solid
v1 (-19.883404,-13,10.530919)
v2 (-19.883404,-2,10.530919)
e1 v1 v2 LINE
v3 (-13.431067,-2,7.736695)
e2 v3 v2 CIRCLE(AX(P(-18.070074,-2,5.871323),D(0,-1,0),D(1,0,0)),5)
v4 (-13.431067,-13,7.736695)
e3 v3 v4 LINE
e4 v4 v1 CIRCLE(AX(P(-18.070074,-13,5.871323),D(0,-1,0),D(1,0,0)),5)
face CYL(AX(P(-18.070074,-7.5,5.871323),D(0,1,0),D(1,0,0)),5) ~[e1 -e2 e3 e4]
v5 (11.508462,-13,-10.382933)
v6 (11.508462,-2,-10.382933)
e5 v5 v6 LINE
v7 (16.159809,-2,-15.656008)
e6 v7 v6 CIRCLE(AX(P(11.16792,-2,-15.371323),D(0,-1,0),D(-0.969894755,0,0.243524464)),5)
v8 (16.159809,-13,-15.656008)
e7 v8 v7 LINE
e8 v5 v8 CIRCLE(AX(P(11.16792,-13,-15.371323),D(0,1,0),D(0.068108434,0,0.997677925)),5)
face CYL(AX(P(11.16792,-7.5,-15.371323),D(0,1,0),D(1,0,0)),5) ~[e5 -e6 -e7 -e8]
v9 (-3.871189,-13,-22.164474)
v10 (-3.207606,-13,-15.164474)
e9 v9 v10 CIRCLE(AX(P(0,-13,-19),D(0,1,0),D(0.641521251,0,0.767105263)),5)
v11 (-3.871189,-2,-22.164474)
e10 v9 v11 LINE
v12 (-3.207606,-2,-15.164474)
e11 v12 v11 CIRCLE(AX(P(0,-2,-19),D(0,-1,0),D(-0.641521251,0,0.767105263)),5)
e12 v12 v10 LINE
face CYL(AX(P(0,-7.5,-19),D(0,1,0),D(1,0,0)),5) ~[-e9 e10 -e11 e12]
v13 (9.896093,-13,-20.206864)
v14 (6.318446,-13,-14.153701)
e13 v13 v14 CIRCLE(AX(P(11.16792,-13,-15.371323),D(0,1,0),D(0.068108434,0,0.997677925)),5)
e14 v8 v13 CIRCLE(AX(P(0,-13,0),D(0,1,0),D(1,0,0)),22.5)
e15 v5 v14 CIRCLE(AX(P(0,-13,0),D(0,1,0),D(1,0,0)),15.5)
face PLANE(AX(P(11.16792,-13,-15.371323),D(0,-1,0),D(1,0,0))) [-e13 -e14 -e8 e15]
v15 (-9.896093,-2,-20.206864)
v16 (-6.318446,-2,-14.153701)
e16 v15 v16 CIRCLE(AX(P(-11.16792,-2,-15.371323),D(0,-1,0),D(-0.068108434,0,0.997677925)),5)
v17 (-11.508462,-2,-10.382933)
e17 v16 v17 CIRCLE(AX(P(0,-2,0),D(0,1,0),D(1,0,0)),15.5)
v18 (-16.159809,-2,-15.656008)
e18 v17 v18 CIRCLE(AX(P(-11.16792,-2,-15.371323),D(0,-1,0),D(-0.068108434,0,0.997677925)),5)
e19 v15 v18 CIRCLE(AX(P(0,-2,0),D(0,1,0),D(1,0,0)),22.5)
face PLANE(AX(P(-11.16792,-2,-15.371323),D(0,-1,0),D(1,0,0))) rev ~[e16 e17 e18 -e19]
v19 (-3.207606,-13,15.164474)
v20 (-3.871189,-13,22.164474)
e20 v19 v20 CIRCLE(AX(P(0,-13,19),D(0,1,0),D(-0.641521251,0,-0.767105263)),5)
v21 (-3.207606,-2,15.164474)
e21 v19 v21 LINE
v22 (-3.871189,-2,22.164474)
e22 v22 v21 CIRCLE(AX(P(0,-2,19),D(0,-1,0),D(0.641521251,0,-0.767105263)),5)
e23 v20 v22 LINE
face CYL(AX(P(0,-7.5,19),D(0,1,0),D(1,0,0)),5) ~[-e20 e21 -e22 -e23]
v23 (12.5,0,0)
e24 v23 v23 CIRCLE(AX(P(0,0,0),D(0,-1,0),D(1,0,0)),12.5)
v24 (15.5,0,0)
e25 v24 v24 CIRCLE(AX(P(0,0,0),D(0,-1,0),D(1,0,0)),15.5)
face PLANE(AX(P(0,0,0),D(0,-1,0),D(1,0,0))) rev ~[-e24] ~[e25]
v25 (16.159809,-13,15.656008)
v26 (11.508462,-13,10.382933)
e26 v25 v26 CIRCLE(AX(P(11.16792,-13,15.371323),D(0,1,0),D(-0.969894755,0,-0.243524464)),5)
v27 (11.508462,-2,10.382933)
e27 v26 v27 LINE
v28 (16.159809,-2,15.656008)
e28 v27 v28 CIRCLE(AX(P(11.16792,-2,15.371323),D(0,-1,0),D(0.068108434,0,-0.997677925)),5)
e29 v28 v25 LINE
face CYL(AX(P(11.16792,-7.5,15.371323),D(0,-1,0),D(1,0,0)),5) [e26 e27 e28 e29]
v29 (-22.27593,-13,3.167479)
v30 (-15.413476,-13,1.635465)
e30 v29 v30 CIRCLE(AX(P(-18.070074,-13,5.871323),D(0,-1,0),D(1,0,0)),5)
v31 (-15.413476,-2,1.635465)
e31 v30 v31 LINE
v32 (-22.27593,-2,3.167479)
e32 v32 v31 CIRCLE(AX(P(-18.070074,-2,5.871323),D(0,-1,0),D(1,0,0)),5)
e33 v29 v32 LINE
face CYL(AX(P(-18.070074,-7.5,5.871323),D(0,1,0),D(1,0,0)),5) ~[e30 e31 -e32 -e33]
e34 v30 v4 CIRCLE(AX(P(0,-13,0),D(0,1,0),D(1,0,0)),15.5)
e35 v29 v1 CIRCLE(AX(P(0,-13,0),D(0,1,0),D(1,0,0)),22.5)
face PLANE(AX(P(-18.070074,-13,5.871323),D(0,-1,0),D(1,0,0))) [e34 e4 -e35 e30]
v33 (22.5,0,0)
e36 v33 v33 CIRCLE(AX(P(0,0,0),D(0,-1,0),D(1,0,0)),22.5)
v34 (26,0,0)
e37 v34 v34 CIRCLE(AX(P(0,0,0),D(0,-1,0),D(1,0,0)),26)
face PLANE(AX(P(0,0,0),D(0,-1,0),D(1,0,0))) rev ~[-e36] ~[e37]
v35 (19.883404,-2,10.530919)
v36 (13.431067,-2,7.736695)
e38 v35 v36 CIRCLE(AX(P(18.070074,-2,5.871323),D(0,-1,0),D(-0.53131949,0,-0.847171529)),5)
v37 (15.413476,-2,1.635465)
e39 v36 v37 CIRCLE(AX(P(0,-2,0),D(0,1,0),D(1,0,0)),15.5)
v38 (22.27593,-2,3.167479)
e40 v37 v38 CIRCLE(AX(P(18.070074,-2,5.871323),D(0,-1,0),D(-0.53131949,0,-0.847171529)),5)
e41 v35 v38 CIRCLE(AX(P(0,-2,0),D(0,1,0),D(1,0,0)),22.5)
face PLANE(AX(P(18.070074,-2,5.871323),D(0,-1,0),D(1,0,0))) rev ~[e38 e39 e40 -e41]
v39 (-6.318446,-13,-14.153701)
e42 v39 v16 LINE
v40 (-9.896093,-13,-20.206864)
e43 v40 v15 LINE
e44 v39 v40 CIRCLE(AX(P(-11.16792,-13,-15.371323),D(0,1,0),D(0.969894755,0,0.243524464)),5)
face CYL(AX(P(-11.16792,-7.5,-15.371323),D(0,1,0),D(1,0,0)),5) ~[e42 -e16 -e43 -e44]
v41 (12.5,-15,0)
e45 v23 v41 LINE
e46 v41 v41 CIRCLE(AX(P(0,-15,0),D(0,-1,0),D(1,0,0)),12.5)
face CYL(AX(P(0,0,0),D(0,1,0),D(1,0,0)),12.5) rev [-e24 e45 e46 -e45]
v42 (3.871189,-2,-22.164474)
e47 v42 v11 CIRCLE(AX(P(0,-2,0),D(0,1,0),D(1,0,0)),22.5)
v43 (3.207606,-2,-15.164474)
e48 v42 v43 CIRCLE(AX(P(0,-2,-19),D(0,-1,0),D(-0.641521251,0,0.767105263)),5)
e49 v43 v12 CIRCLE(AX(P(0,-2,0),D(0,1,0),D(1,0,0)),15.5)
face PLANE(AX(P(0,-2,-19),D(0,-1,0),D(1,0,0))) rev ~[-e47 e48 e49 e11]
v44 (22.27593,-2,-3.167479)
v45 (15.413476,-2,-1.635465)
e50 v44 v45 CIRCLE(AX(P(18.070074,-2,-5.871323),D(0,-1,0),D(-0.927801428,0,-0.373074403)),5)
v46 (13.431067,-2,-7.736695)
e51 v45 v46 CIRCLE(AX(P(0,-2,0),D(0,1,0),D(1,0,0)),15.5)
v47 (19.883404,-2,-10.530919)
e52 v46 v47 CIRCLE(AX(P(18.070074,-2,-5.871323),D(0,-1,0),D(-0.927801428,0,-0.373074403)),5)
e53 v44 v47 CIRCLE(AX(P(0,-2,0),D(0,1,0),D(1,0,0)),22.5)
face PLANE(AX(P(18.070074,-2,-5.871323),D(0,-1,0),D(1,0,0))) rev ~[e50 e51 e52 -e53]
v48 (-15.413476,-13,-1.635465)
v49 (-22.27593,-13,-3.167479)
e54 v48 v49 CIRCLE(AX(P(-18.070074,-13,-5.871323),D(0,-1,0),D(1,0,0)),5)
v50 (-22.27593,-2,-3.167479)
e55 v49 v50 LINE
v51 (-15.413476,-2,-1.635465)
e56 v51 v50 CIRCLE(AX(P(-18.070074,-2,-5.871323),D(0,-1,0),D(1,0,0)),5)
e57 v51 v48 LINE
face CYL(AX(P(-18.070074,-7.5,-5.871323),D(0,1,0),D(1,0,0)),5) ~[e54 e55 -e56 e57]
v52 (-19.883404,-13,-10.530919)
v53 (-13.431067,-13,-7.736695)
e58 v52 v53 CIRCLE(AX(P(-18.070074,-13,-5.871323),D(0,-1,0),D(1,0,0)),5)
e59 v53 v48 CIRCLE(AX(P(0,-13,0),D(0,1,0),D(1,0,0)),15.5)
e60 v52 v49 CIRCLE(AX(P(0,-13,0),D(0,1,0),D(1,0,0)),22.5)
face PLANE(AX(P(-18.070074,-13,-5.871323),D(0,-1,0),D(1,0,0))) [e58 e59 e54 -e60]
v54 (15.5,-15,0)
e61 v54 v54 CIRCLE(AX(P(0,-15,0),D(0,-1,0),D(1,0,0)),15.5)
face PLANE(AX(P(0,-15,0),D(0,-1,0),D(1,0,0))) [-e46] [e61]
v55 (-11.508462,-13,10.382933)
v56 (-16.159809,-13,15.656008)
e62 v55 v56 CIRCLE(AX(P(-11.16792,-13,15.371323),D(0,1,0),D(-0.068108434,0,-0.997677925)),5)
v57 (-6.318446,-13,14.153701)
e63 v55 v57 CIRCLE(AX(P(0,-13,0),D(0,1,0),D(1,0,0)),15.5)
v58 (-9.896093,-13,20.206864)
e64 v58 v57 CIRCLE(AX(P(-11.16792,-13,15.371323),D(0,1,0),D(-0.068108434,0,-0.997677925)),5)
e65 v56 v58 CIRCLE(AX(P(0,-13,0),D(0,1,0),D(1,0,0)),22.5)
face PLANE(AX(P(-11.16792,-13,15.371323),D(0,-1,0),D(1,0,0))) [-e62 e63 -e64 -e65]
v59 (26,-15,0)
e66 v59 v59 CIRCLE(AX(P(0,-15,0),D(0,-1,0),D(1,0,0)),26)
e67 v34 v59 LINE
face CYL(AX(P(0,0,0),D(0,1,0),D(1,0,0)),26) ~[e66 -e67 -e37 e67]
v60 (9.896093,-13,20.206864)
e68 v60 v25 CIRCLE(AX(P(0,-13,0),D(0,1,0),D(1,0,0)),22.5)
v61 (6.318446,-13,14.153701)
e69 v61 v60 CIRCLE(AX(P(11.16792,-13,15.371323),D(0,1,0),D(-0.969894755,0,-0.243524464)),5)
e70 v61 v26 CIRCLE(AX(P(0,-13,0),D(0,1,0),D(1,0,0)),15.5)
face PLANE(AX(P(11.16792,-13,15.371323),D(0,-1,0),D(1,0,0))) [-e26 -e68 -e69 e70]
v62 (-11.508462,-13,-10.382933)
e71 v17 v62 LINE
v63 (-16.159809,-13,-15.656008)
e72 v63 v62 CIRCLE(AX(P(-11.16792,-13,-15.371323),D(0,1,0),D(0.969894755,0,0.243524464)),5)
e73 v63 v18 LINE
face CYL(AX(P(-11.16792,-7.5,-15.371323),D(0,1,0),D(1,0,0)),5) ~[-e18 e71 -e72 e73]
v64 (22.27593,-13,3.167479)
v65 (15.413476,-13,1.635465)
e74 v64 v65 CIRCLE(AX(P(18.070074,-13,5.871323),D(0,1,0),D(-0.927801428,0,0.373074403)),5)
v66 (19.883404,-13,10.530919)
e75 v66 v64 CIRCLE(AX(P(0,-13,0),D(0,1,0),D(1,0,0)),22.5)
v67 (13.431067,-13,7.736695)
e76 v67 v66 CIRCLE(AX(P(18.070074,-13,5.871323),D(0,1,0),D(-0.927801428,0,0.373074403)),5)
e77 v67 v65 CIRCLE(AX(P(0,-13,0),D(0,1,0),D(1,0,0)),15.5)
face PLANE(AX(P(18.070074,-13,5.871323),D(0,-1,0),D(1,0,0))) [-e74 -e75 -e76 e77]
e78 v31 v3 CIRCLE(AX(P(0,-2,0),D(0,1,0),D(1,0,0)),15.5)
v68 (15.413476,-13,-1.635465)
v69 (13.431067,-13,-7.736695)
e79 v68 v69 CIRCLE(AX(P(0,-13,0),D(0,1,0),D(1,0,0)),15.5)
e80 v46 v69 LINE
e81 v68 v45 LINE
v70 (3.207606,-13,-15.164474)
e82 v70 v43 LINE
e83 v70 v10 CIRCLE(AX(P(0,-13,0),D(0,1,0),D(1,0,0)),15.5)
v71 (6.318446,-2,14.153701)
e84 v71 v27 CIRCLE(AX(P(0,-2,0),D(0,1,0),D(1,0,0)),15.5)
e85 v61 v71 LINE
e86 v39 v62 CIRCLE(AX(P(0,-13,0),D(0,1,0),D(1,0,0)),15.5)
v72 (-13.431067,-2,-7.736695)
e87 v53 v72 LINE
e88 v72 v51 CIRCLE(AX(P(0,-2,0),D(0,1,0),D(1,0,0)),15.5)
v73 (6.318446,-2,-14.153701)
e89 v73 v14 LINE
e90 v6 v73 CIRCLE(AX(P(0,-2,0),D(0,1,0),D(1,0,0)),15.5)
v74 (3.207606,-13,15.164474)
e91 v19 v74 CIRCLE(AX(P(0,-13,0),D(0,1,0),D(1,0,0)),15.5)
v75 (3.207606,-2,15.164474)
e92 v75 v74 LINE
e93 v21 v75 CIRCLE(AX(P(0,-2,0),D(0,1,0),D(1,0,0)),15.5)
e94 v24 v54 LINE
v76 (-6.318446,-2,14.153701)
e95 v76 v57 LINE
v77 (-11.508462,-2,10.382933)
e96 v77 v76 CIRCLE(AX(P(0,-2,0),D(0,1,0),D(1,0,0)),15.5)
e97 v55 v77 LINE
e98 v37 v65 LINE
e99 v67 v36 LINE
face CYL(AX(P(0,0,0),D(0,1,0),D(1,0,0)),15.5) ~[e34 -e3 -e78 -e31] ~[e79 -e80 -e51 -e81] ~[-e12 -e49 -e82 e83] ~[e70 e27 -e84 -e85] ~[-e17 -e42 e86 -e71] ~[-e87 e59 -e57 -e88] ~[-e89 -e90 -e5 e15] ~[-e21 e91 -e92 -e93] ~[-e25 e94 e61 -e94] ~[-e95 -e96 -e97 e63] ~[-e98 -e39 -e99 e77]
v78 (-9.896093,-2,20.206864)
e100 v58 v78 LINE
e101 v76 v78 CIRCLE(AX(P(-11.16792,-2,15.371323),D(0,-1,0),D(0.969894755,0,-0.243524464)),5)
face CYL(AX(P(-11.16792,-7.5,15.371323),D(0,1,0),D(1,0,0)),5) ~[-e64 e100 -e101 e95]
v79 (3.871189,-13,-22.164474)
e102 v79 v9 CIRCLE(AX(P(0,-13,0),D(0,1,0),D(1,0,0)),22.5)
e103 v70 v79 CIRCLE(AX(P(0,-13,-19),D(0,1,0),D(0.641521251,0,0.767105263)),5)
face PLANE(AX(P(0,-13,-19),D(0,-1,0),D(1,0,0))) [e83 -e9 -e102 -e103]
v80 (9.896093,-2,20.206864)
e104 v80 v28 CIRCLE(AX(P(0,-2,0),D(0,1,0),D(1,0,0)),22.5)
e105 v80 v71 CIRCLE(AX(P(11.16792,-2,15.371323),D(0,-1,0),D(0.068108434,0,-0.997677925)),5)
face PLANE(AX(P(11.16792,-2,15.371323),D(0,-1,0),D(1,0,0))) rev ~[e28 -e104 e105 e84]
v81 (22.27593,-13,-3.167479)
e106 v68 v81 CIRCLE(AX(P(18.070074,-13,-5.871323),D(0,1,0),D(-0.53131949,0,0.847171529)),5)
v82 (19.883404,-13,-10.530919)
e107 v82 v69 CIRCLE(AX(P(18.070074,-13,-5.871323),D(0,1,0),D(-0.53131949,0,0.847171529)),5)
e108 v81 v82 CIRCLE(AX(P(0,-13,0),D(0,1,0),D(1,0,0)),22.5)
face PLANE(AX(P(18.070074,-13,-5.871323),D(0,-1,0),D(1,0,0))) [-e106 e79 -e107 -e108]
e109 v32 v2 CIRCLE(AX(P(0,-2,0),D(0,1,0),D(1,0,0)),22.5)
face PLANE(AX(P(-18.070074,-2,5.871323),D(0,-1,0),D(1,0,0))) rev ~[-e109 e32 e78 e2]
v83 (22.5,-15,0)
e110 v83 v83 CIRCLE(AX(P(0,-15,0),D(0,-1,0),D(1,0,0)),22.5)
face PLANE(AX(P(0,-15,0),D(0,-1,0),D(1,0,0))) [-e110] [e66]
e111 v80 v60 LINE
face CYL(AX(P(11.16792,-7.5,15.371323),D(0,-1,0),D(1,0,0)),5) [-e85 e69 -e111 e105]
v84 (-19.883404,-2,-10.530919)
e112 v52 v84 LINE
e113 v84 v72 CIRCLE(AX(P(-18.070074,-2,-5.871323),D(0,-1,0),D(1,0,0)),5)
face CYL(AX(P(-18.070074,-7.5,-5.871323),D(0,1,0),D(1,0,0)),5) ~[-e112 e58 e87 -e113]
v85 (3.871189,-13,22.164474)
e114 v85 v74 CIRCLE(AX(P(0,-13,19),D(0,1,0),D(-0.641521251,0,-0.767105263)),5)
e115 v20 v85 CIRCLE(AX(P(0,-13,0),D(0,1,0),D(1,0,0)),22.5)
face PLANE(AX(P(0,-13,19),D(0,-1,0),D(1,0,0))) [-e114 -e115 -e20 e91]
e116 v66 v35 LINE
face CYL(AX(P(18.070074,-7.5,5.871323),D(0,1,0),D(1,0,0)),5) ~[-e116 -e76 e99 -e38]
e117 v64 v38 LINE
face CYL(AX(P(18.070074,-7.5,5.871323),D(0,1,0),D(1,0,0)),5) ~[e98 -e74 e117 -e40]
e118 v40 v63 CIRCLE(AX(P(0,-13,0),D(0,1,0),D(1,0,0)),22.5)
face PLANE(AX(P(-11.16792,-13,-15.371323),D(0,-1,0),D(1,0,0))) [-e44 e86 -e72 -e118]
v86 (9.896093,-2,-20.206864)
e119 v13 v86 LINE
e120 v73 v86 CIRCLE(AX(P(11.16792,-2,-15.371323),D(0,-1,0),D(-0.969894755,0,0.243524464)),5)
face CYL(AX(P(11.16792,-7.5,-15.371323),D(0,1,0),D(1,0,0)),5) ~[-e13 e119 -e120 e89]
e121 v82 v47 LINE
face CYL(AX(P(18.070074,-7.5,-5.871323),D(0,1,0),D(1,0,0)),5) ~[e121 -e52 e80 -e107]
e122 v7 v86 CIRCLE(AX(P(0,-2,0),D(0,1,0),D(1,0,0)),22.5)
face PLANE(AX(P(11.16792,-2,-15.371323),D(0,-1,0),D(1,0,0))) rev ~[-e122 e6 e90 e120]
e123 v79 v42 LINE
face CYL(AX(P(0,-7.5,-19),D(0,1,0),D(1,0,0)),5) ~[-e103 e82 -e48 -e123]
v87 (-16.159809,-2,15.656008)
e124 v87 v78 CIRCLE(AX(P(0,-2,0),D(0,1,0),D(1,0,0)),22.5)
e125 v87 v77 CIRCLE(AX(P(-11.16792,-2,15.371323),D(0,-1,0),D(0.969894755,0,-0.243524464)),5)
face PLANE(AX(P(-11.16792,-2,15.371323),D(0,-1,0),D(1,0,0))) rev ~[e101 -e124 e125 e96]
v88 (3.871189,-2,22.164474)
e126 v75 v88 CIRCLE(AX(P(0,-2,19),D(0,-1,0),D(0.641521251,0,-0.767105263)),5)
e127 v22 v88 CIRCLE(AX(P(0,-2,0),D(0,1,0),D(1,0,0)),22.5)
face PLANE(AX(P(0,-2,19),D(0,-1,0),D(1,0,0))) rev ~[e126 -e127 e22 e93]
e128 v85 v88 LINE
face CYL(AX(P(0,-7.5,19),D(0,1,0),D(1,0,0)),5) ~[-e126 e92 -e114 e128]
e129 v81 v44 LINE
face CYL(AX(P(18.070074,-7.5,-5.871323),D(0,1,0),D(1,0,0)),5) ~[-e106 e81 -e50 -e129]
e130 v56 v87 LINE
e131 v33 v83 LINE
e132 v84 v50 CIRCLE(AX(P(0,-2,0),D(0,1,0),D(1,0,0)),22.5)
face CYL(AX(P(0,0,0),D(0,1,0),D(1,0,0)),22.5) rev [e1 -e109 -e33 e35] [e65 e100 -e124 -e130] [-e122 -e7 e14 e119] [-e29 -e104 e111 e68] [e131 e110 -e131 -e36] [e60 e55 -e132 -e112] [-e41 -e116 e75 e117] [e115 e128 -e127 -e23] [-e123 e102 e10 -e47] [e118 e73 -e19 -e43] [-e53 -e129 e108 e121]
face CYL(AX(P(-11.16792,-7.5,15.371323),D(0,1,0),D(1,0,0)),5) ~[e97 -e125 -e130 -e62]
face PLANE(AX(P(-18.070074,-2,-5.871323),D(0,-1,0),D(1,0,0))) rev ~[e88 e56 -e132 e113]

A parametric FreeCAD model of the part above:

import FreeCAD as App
import Part
import Sketcher

doc = App.newDocument("Part")
body = doc.addObject("PartDesign::Body", "Body")

# Sketch on XZ plane
sketch1 = body.newObject("Sketcher::SketchObject", "Sketch")
sketch1.AttachmentSupport = (doc.getObject("XZ_Plane"), [""])
sketch1.MapMode = "FlatFace"
sketch1.addGeometry([
    Part.Circle(App.Vector(0, 0, 0), App.Vector(0, 0, 1), 16),
    Part.Circle(App.Vector(0, 0, 0), App.Vector(0, 0, 1), 12),
], False)
sketch1.addConstraint([
    Sketcher.Constraint("Coincident", 0, 3, -1, 1),
    Sketcher.Constraint("Coincident", 1, 3, -1, 1),
    Sketcher.Constraint("Diameter", 0, 31.0),
    Sketcher.Constraint("Diameter", 1, 25.0),
])
pad1 = body.newObject("PartDesign::Pad", "Pad")
pad1.Profile = sketch1
pad1.Length = 15

# Sketch on XZ plane
sketch2 = body.newObject("Sketcher::SketchObject", "Sketch001")
sketch2.AttachmentSupport = (doc.getObject("XZ_Plane"), [""])
sketch2.MapMode = "FlatFace"
sketch2.AttachmentOffset = App.Placement(App.Vector(0, 0, 7.5), App.Rotation())
sketch2.addGeometry([
    Part.Circle(App.Vector(0, 19, 0), App.Vector(0, 0, 1), 5),  # 0
    Part.Circle(App.Vector(-11, 15, 0), App.Vector(0, 0, 1), 5),  # 1
    Part.Circle(App.Vector(-18, 6, 0), App.Vector(0, 0, 1), 5),  # 2
    Part.Circle(App.Vector(-18, -6, 0), App.Vector(0, 0, 1), 5),  # 3
    Part.Circle(App.Vector(-11, -15, 0), App.Vector(0, 0, 1), 5),  # 4
    Part.Circle(App.Vector(0, -19, 0), App.Vector(0, 0, 1), 5),  # 5
    Part.Circle(App.Vector(11, -15, 0), App.Vector(0, 0, 1), 5),  # 6
    Part.Circle(App.Vector(18, -6, 0), App.Vector(0, 0, 1), 5),  # 7
    Part.Circle(App.Vector(18, 6, 0), App.Vector(0, 0, 1), 5),  # 8
    Part.Circle(App.Vector(11, 15, 0), App.Vector(0, 0, 1), 5),  # 9
], False)
sketch2.addConstraint([
    Sketcher.Constraint("Equal", 0, 1),
    Sketcher.Constraint("Equal", 1, 2),
    Sketcher.Constraint("Equal", 2, 3),
    Sketcher.Constraint("Equal", 3, 4),
    Sketcher.Constraint("Equal", 4, 5),
    Sketcher.Constraint("Equal", 5, 6),
    Sketcher.Constraint("Equal", 6, 7),
    Sketcher.Constraint("Equal", 7, 8),
    Sketcher.Constraint("Equal", 8, 9),
    Sketcher.Constraint("Symmetric", 0, 3, 5, 3, -1, 1),
    Sketcher.Constraint("Symmetric", 1, 3, 6, 3, -1, 1),
    Sketcher.Constraint("Symmetric", 2, 3, 7, 3, -1, 1),
    Sketcher.Constraint("Symmetric", 3, 3, 8, 3, -1, 1),
    Sketcher.Constraint("Symmetric", 4, 3, 9, 3, -1, 1),
    Sketcher.Constraint("Symmetric", 4, 3, 6, 3, -2),
    Sketcher.Constraint("Symmetric", 3, 3, 7, 3, -2),
    Sketcher.Constraint("PointOnObject", 0, 3, -2),
    Sketcher.Constraint("Diameter", 0, 10.0),
    Sketcher.Constraint("DistanceY", -1, 1, 0, 3, 19.0),
    Sketcher.Constraint("DistanceY", 2, 3, 1, 3, 9.5),
    Sketcher.Constraint("DistanceX", 1, 3, -1, 1, 11.16792),
    Sketcher.Constraint("DistanceY", -1, 1, 1, 3, 15.371323),
    Sketcher.Constraint("DistanceX", 2, 3, -1, 1, 18.070074),
])
pad2 = body.newObject("PartDesign::Pad", "Pad001")
pad2.Profile = sketch2
pad2.Length = 11
pad2.Midplane = True

# Sketch on XZ plane
sketch3 = body.newObject("Sketcher::SketchObject", "Sketch002")
sketch3.AttachmentSupport = (doc.getObject("XZ_Plane"), [""])
sketch3.MapMode = "FlatFace"
sketch3.addGeometry([
    Part.Circle(App.Vector(0, 0, 0), App.Vector(0, 0, 1), 26),
    Part.Circle(App.Vector(0, 0, 0), App.Vector(0, 0, 1), 22),
], False)
sketch3.addConstraint([
    Sketcher.Constraint("Coincident", 0, 3, -1, 1),
    Sketcher.Constraint("Coincident", 1, 3, -1, 1),
    Sketcher.Constraint("Diameter", 0, 52.0),
    Sketcher.Constraint("Diameter", 1, 45.0),
])
pad3 = body.newObject("PartDesign::Pad", "Pad002")
pad3.Profile = sketch3
pad3.Length = 15

doc.recompute()
